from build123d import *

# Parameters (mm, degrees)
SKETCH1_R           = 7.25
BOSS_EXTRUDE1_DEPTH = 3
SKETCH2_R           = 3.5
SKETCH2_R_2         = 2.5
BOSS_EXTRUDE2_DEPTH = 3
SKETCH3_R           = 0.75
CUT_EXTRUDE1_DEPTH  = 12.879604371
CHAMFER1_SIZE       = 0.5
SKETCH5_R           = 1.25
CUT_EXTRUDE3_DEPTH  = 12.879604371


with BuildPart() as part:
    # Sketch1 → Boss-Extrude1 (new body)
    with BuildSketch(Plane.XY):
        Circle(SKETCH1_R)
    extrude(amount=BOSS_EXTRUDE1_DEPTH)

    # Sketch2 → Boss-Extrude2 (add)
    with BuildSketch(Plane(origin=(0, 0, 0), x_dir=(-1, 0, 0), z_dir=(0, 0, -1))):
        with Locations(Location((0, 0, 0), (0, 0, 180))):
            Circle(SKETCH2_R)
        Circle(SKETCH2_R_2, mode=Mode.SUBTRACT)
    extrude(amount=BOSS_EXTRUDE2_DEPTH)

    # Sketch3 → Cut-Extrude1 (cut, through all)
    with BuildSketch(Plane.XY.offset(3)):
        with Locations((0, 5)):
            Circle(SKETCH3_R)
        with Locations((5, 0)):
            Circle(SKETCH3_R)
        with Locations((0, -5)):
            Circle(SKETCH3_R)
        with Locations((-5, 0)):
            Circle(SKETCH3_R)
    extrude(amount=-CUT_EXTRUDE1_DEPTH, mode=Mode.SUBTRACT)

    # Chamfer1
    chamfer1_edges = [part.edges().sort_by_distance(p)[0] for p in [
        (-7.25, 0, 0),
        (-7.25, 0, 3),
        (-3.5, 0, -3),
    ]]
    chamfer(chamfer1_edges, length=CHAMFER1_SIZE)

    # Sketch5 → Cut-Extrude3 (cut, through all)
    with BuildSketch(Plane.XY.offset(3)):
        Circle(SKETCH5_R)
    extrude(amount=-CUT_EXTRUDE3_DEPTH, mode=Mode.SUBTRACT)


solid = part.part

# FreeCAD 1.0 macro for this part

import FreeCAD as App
import Part
import Sketcher

V = App.Vector


def edges_at(feature, points):
    """Names of the edges that pass closest to the given points."""
    edges = feature.Shape.Edges
    near = lambda p: min(range(len(edges)), key=lambda i: edges[i].distToShape(Part.Vertex(*p))[0])
    return sorted({f"Edge{near(p) + 1}" for p in points})

doc = App.newDocument("Part")
body = doc.addObject("PartDesign::Body", "Body")

sketch1 = doc.addObject("Sketcher::SketchObject", "Sketch")
body.addObject(sketch1)
sketch1.AttachmentSupport = (doc.XY_Plane, [""])
sketch1.MapMode = "FlatFace"
sketch1.addGeometry(Part.Circle(V(0, 0, 0), V(0, 0, 1), 7), False)
sketch1.addConstraint([
    Sketcher.Constraint("Coincident", 0, 3, -1, 1),
    Sketcher.Constraint("Diameter", 0, 14.5),
])
pad1 = doc.addObject("PartDesign::Pad", "Pad")
body.addObject(pad1)
pad1.Profile = sketch1
pad1.Length = 3

sketch2 = doc.addObject("Sketcher::SketchObject", "Sketch001")
body.addObject(sketch2)
sketch2.AttachmentSupport = (doc.XY_Plane, [""])
sketch2.MapMode = "FlatFace"
sketch2.addGeometry([
    Part.Circle(V(0, 0, 0), V(0, 0, 1), 3.5),
    Part.Circle(V(0, 0, 0), V(0, 0, 1), 2.5),
], False)
sketch2.addConstraint([
    Sketcher.Constraint("Coincident", 0, 3, -1, 1),
    Sketcher.Constraint("Coincident", 1, 3, -1, 1),
    Sketcher.Constraint("Diameter", 0, 7.0),
    Sketcher.Constraint("Diameter", 1, 5.0),
])
pad2 = doc.addObject("PartDesign::Pad", "Pad001")
body.addObject(pad2)
pad2.Profile = sketch2
pad2.Length = 3
pad2.Reversed = True

sketch3 = doc.addObject("Sketcher::SketchObject", "Sketch002")
body.addObject(sketch3)
sketch3.AttachmentSupport = (doc.XY_Plane, [""])
sketch3.MapMode = "FlatFace"
sketch3.AttachmentOffset = App.Placement(V(0, 0, 3), App.Rotation())
sketch3.addGeometry([
    Part.Circle(V(0, 5, 0), V(0, 0, 1), 0.8),
    Part.Circle(V(5, 0, 0), V(0, 0, 1), 0.8),
    Part.Circle(V(0, -5, 0), V(0, 0, 1), 0.8),
    Part.Circle(V(-5, 0, 0), V(0, 0, 1), 0.8),
], False)
sketch3.addConstraint([
    Sketcher.Constraint("Equal", 0, 1),
    Sketcher.Constraint("Equal", 1, 2),
    Sketcher.Constraint("Equal", 2, 3),
    Sketcher.Constraint("Symmetric", 0, 3, 2, 3, -1, 1),
    Sketcher.Constraint("Symmetric", 1, 3, 3, 3, -1, 1),
    Sketcher.Constraint("PointOnObject", 0, 3, -2),
    Sketcher.Constraint("PointOnObject", 1, 3, -1),
    Sketcher.Constraint("Diameter", 0, 1.5),
    Sketcher.Constraint("DistanceY", -1, 1, 0, 3, 5.0),
    Sketcher.Constraint("DistanceX", -1, 1, 1, 3, 5.0),
])
pocket1 = doc.addObject("PartDesign::Pocket", "Pocket")
body.addObject(pocket1)
pocket1.Profile = sketch3
pocket1.Type = "ThroughAll"
doc.recompute()

chamfer = doc.addObject("PartDesign::Chamfer", "Chamfer")
body.addObject(chamfer)
chamfer.Base = (pocket1, edges_at(pocket1, [(-7.25, 0, 0), (-7.25, 0, 3), (-3.5, 0, -3)]))
chamfer.Size = 0.5

sketch4 = doc.addObject("Sketcher::SketchObject", "Sketch003")
body.addObject(sketch4)
sketch4.AttachmentSupport = (doc.XY_Plane, [""])
sketch4.MapMode = "FlatFace"
sketch4.AttachmentOffset = App.Placement(V(0, 0, 3), App.Rotation())
sketch4.addGeometry(Part.Circle(V(0, 0, 0), V(0, 0, 1), 1.2), False)
sketch4.addConstraint([
    Sketcher.Constraint("Coincident", 0, 3, -1, 1),
    Sketcher.Constraint("Diameter", 0, 2.5),
])
pocket2 = doc.addObject("PartDesign::Pocket", "Pocket001")
body.addObject(pocket2)
pocket2.Profile = sketch4
pocket2.Type = "ThroughAll"

doc.recompute()
